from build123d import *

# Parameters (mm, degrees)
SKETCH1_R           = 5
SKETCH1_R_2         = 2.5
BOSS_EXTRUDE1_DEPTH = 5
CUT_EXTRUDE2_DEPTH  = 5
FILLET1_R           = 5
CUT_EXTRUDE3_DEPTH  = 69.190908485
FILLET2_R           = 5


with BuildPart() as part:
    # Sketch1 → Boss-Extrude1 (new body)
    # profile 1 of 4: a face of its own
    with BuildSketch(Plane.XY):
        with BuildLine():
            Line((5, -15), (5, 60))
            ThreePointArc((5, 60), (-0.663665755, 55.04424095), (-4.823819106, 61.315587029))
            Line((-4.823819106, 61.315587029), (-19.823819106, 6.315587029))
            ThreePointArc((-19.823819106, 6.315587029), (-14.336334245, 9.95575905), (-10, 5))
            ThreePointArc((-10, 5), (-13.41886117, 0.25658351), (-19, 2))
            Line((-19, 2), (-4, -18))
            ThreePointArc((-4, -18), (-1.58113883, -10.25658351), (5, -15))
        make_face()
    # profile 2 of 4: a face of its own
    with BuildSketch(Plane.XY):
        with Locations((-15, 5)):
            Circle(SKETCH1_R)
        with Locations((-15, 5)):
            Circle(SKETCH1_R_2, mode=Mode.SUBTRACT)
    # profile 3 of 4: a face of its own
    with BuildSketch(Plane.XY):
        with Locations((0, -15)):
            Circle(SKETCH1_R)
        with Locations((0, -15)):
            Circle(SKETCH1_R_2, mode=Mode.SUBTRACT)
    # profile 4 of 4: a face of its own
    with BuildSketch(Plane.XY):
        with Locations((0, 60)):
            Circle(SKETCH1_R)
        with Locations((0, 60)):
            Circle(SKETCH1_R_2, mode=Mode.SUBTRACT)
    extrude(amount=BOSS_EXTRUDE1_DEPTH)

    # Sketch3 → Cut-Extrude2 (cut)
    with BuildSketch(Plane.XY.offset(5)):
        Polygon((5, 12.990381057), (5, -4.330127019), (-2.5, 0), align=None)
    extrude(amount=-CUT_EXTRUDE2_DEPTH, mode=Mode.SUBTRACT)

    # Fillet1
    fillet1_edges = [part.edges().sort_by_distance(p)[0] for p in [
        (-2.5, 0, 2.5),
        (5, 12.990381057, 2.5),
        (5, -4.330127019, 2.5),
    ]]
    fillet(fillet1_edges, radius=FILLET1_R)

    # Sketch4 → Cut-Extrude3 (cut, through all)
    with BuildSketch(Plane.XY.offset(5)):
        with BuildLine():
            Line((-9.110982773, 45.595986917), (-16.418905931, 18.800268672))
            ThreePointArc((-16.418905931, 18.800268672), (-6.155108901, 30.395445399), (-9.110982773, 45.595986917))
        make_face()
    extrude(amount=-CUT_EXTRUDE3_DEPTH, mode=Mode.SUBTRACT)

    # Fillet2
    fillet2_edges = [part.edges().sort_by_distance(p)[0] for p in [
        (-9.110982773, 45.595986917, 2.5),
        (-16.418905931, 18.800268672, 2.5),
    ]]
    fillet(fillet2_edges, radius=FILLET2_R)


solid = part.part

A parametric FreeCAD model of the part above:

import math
import FreeCAD as App
import Part
import Sketcher
Q = App.Units.Quantity


def edges_at(feature, points):
    """Names of the edges that pass closest to the given points."""
    edges = feature.Shape.Edges
    near = lambda p: min(range(len(edges)), key=lambda i: edges[i].distToShape(Part.Vertex(*p))[0])
    return sorted({f"Edge{near(p) + 1}" for p in points})


def add_polygon(sketch, points):
    """Adds a closed chain of lines whose ends are joined by coincident constraints."""
    first, n = sketch.GeometryCount, len(points)
    for a, b in zip(points, points[1:] + points[:1]):
        sketch.addGeometry(Part.LineSegment(App.Vector(*a, 0), App.Vector(*b, 0)), False)
    for i in range(n):
        sketch.addConstraint(Sketcher.Constraint("Coincident", first + i, 2, first + (i + 1) % n, 1))

doc = App.newDocument("Part")
body = doc.addObject("PartDesign::Body", "Body")

sketch1 = doc.addObject("Sketcher::SketchObject", "Sketch")
body.addObject(sketch1)
sketch1.AttachmentSupport = (doc.XY_Plane, [""])
sketch1.MapMode = "FlatFace"
sketch1.addGeometry(Part.LineSegment(App.Vector(5, -15, 0), App.Vector(5, 60, 0)), False)
sketch1.addGeometry(Part.ArcOfCircle(Part.Circle(App.Vector(0, 60, 0), App.Vector(0, 0, 1), 5), math.radians(0), math.radians(164.744881)), False)
sketch1.addGeometry(Part.LineSegment(App.Vector(-4.823819, 61.315587, 0), App.Vector(-19.823819, 6.315587, 0)), False)
sketch1.addGeometry(Part.ArcOfCircle(Part.Circle(App.Vector(-15, 5, 0), App.Vector(0, 0, 1), 5), math.radians(164.744881), math.radians(216.869898)), False)
sketch1.addGeometry(Part.LineSegment(App.Vector(-19, 2, 0), App.Vector(-4, -18, 0)), False)
sketch1.addGeometry(Part.ArcOfCircle(Part.Circle(App.Vector(0, -15, 0), App.Vector(0, 0, 1), 5), math.radians(-143.130102), math.radians(0)), False)
sketch1.addGeometry(Part.Circle(App.Vector(0, 60, 0), App.Vector(0, 0, 1), 2.5), False)
sketch1.addGeometry(Part.Circle(App.Vector(-15, 5, 0), App.Vector(0, 0, 1), 2.5), False)
sketch1.addGeometry(Part.Circle(App.Vector(0, -15, 0), App.Vector(0, 0, 1), 2.5), False)
sketch1.addConstraint(Sketcher.Constraint("Tangent", 0, 2, 1, 1))
sketch1.addConstraint(Sketcher.Constraint("Tangent", 1, 2, 2, 1))
sketch1.addConstraint(Sketcher.Constraint("Tangent", 2, 2, 3, 1))
sketch1.addConstraint(Sketcher.Constraint("Tangent", 3, 2, 4, 1))
sketch1.addConstraint(Sketcher.Constraint("Tangent", 4, 2, 5, 1))
sketch1.addConstraint(Sketcher.Constraint("Tangent", 5, 2, 0, 1))
sketch1.addConstraint(Sketcher.Constraint("Vertical", 0))
sketch1.addConstraint(Sketcher.Constraint("Coincident", 6, 3, 1, 3))
sketch1.addConstraint(Sketcher.Constraint("Coincident", 7, 3, 3, 3))
sketch1.addConstraint(Sketcher.Constraint("Coincident", 8, 3, 5, 3))
sketch1.addConstraint(Sketcher.Constraint("Equal", 1, 3))
sketch1.addConstraint(Sketcher.Constraint("Equal", 3, 5))
sketch1.addConstraint(Sketcher.Constraint("Equal", 6, 7))
sketch1.addConstraint(Sketcher.Constraint("Equal", 7, 8))
sketch1.addConstraint(Sketcher.Constraint("PointOnObject", 1, 3, -2))
sketch1.addConstraint(Sketcher.Constraint("Diameter", 6, Q("5 mm")))
sketch1.addConstraint(Sketcher.Constraint("Radius", 1, Q("5 mm")))
sketch1.addConstraint(Sketcher.Constraint("DistanceY", 0, 1, 0, 2, Q("75 mm")))
sketch1.addConstraint(Sketcher.Constraint("Distance", 4, Q("25 mm")))
sketch1.addConstraint(Sketcher.Constraint("DistanceY", -1, 1, 1, 3, Q("60 mm")))
sketch1.addConstraint(Sketcher.Constraint("DistanceX", 3, 3, -1, 1, Q("15 mm")))
pad1 = doc.addObject("PartDesign::Pad", "Pad")
body.addObject(pad1)
pad1.Profile = sketch1
pad1.Length = 5

sketch2 = doc.addObject("Sketcher::SketchObject", "Sketch001")
body.addObject(sketch2)
sketch2.AttachmentSupport = (doc.XY_Plane, [""])
sketch2.MapMode = "FlatFace"
sketch2.AttachmentOffset = App.Placement(App.Vector(0, 0, 5), App.Rotation())
add_polygon(sketch2, [(5, -4.330127), (5, 12.990381), (-2.5, 0)])
sketch2.addConstraint(Sketcher.Constraint("Vertical", 0))
sketch2.addConstraint(Sketcher.Constraint("PointOnObject", 1, 2, -1))
sketch2.addConstraint(Sketcher.Constraint("Perpendicular", 1, 2))
sketch2.addConstraint(Sketcher.Constraint("Angle", 1, Q("-120 deg")))
sketch2.addConstraint(Sketcher.Constraint("Distance", 1, Q("15 mm")))
sketch2.addConstraint(Sketcher.Constraint("DistanceX", -1, 1, 0, 2, Q("5 mm")))
pocket1 = doc.addObject("PartDesign::Pocket", "Pocket")
body.addObject(pocket1)
pocket1.Profile = sketch2
pocket1.Length = 5
doc.recompute()

fillet = doc.addObject("PartDesign::Fillet", "Fillet")
body.addObject(fillet)
fillet.Base = (pocket1, edges_at(pocket1, [(-2.5, 0, 2.5), (5, 12.99, 2.5), (5, -4.33, 2.5)]))
fillet.Radius = 5

sketch3 = doc.addObject("Sketcher::SketchObject", "Sketch002")
body.addObject(sketch3)
sketch3.AttachmentSupport = (doc.XY_Plane, [""])
sketch3.MapMode = "FlatFace"
sketch3.AttachmentOffset = App.Placement(App.Vector(0, 0, 5), App.Rotation())
sketch3.addGeometry(Part.LineSegment(App.Vector(-9.110983, 45.595987, 0), App.Vector(-16.418906, 18.800269, 0)), False)
sketch3.addGeometry(Part.ArcOfCircle(Part.Circle(App.Vector(-23.038476, 35, 0), App.Vector(0, 0, 1), 17.5), math.radians(-67.773985), math.radians(37.263748)), False)
sketch3.addConstraint(Sketcher.Constraint("Coincident", 0, 1, 1, 2))
sketch3.addConstraint(Sketcher.Constraint("Coincident", 1, 1, 0, 2))
sketch3.addConstraint(Sketcher.Constraint("Radius", 1, Q("17.5 mm")))
sketch3.addConstraint(Sketcher.Constraint("DistanceY", -1, 1, 1, 3, Q("35 mm")))
sketch3.addConstraint(Sketcher.Constraint("Distance", 0, Q("27.774381 mm")))
sketch3.addConstraint(Sketcher.Constraint("DistanceY", -1, 1, 1, 1, Q("18.800269 mm")))
sketch3.addConstraint(Sketcher.Constraint("DistanceX", 1, 3, -1, 1, Q("23.038476 mm")))
pocket2 = doc.addObject("PartDesign::Pocket", "Pocket001")
body.addObject(pocket2)
pocket2.Profile = sketch3
pocket2.Type = "ThroughAll"
doc.recompute()

fillet2 = doc.addObject("PartDesign::Fillet", "Fillet001")
body.addObject(fillet2)
fillet2.Base = (pocket2, edges_at(pocket2, [(-9.111, 45.596, 2.5), (-16.419, 18.8, 2.5)]))
fillet2.Radius = 5

doc.recompute()
